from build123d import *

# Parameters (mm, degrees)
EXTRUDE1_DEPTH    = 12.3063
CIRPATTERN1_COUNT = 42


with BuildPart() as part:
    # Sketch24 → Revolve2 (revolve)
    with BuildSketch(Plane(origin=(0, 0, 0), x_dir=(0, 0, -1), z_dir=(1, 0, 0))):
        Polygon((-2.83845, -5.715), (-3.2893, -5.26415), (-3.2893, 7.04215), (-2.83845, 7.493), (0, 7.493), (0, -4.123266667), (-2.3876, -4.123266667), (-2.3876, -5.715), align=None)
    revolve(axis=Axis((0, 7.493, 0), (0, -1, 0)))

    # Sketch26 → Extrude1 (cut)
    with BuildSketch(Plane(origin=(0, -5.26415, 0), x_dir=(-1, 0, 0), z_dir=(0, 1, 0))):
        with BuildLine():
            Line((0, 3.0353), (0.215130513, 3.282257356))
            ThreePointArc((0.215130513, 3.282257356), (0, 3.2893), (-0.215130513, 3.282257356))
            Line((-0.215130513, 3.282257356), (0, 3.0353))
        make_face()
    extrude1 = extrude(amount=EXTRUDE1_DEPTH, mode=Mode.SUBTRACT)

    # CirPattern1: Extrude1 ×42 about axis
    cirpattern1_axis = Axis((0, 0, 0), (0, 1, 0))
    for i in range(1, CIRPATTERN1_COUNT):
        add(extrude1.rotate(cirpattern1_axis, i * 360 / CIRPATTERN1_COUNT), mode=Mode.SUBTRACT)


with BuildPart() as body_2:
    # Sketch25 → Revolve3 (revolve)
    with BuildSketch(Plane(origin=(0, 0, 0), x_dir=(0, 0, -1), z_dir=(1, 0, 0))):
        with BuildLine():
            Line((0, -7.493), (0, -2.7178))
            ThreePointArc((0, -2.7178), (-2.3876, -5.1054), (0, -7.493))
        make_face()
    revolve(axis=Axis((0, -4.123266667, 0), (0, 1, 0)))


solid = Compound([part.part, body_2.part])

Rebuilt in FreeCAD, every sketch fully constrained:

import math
import FreeCAD as App
import Part
import Sketcher
from FreeCAD import Vector
Q = App.Units.Quantity


def add_polygon(sketch, points):
    """Adds a closed chain of lines whose ends are joined by coincident constraints."""
    first, n = sketch.GeometryCount, len(points)
    for a, b in zip(points, points[1:] + points[:1]):
        sketch.addGeometry(Part.LineSegment(App.Vector(*a, 0), App.Vector(*b, 0)), False)
    for i in range(n):
        sketch.addConstraint(Sketcher.Constraint("Coincident", first + i, 2, first + (i + 1) % n, 1))

doc = App.newDocument("Part")
params = doc.addObject("Spreadsheet::Sheet", "Params")
for row, (alias, value) in enumerate([
    ("sketch1_height", "0.094 in"),
    ("revolution_angle", "360 deg"),
    ("pocket1_length", "0.4845 in"),
    ("sketch3_radius", "0.094 in"),
    ("revolution2_angle", "360 deg"),
], start=1):
    params.set(f"A{row}", alias)
    params.set(f"B{row}", "=" + value)
    params.setAlias(f"B{row}", alias)

body = doc.addObject("PartDesign::Body", "Body")

sketch1 = body.newObject("Sketcher::SketchObject", "Sketch")
sketch1.AttachmentSupport = (doc.getObject("YZ_Plane"), [""])
sketch1.MapMode = "FlatFace"
add_polygon(sketch1, [(-5.26, 3.29), (-5.71, 2.84), (-5.71, 2.39), (-4.12, 2.39), (-4.12, 0), (7.49, 0), (7.49, 2.84), (7.04, 3.29)])
sketch1.addConstraint([
    Sketcher.Constraint("Vertical", 1),
    Sketcher.Constraint("Horizontal", 2),
    Sketcher.Constraint("Vertical", 3),
    Sketcher.Constraint("Horizontal", 4),
    Sketcher.Constraint("Vertical", 5),
    Sketcher.Constraint("Horizontal", 7),
    Sketcher.Constraint("PointOnObject", 3, 2, -1),
    Sketcher.Constraint("Perpendicular", 0, 6),
    Sketcher.Constraint("Horizontal", 0, 2, 5, 2),
    Sketcher.Constraint("Equal", 0, 6),
    Sketcher.Constraint("DistanceY", 3, 2, 3, 1, Q("0.094 in")),
    Sketcher.Constraint("DistanceX", 1, 2, 4, 2, Q("0.52 in")),
    Sketcher.Constraint("DistanceX", 7, 2, 7, 1, Q("0.4845 in")),
    Sketcher.Constraint("DistanceX", 0, 2, -1, 1, Q("0.225 in")),
    Sketcher.Constraint("DistanceY", -1, 1, 6, 2, Q("0.1295 in")),
    Sketcher.Constraint("DistanceX", 2, 1, 2, 2, 1.591733),
])
sketch1.setExpression("Constraints[18]", "Params.sketch1_height")
revolution = body.newObject("PartDesign::Revolution", "Revolution")
revolution.Profile = sketch1
revolution.ReferenceAxis = (sketch1, ["H_Axis"])
revolution.setExpression("Angle", "Params.revolution_angle")

sketch2 = body.newObject("Sketcher::SketchObject", "Sketch001")
sketch2.AttachmentSupport = (doc.getObject("XZ_Plane"), [""])
sketch2.MapMode = "FlatFace"
sketch2.AttachmentOffset = App.Placement(Vector(0, 0, 5.26415), App.Rotation())
sketch2.addGeometry([
    Part.LineSegment(Vector(0, 3.04, 0), Vector(-0.22, 3.28, 0)),
    Part.ArcOfCircle(Part.Circle(Vector(0, 0, 0), Vector(0, 0, 1), 3.29), math.radians(86.25), math.radians(93.75)),
    Part.LineSegment(Vector(0.22, 3.28, 0), Vector(0, 3.04, 0)),
], False)
sketch2.addConstraint([
    Sketcher.Constraint("Coincident", 0, 2, 1, 2),
    Sketcher.Constraint("Coincident", 1, 1, 2, 1),
    Sketcher.Constraint("Coincident", 2, 2, 0, 1),
    Sketcher.Constraint("Coincident", 1, 3, -1, 1),
    Sketcher.Constraint("PointOnObject", 2, 2, -2),
    Sketcher.Constraint("Horizontal", 0, 2, 1, 1),
    Sketcher.Constraint("Radius", 1, Q("0.1295 in")),
    Sketcher.Constraint("DistanceY", -1, 1, 2, 2, Q("0.1195 in")),
    Sketcher.Constraint("Distance", 0, 0.32752),
])
pocket1 = body.newObject("PartDesign::Pocket", "Pocket")
pocket1.Profile = sketch2
pocket1.setExpression("Length", "Params.pocket1_length")
doc.recompute()

polarpattern = body.newObject("PartDesign::PolarPattern", "PolarPattern")
polarpattern.Originals = [pocket1]
polarpattern.Axis = (doc.getObject("Y_Axis"), [""])
polarpattern.Angle = 360
polarpattern.Occurrences = 42
body.Tip = polarpattern
body2 = doc.addObject("PartDesign::Body", "Body001")

sketch3 = body2.newObject("Sketcher::SketchObject", "Sketch002")
sketch3.AttachmentSupport = (doc.getObject("YZ_Plane001"), [""])
sketch3.MapMode = "FlatFace"
sketch3.addGeometry([
    Part.LineSegment(Vector(-7.5, 0, 0), Vector(-2.7, 0, 0)),
    Part.ArcOfCircle(Part.Circle(Vector(-5.1, 0, 0), Vector(0, 0, 1), 2.4), math.radians(0), math.radians(180)),
], False)
sketch3.addConstraint([
    Sketcher.Constraint("Coincident", 0, 1, 1, 2),
    Sketcher.Constraint("Coincident", 1, 1, 0, 2),
    Sketcher.Constraint("Horizontal", 0),
    Sketcher.Constraint("PointOnObject", 1, 3, -1),
    Sketcher.Constraint("PointOnObject", 0, 1, -1),
    Sketcher.Constraint("Radius", 1, Q("0.094 in")),
    Sketcher.Constraint("DistanceX", 1, 3, -1, 1, Q("0.201 in")),
])
sketch3.setExpression("Constraints[5]", "Params.sketch3_radius")
revolution2 = body2.newObject("PartDesign::Revolution", "Revolution001")
revolution2.Profile = sketch3
revolution2.ReferenceAxis = (sketch3, ["H_Axis"])
revolution2.setExpression("Angle", "Params.revolution2_angle")

doc.recompute()
